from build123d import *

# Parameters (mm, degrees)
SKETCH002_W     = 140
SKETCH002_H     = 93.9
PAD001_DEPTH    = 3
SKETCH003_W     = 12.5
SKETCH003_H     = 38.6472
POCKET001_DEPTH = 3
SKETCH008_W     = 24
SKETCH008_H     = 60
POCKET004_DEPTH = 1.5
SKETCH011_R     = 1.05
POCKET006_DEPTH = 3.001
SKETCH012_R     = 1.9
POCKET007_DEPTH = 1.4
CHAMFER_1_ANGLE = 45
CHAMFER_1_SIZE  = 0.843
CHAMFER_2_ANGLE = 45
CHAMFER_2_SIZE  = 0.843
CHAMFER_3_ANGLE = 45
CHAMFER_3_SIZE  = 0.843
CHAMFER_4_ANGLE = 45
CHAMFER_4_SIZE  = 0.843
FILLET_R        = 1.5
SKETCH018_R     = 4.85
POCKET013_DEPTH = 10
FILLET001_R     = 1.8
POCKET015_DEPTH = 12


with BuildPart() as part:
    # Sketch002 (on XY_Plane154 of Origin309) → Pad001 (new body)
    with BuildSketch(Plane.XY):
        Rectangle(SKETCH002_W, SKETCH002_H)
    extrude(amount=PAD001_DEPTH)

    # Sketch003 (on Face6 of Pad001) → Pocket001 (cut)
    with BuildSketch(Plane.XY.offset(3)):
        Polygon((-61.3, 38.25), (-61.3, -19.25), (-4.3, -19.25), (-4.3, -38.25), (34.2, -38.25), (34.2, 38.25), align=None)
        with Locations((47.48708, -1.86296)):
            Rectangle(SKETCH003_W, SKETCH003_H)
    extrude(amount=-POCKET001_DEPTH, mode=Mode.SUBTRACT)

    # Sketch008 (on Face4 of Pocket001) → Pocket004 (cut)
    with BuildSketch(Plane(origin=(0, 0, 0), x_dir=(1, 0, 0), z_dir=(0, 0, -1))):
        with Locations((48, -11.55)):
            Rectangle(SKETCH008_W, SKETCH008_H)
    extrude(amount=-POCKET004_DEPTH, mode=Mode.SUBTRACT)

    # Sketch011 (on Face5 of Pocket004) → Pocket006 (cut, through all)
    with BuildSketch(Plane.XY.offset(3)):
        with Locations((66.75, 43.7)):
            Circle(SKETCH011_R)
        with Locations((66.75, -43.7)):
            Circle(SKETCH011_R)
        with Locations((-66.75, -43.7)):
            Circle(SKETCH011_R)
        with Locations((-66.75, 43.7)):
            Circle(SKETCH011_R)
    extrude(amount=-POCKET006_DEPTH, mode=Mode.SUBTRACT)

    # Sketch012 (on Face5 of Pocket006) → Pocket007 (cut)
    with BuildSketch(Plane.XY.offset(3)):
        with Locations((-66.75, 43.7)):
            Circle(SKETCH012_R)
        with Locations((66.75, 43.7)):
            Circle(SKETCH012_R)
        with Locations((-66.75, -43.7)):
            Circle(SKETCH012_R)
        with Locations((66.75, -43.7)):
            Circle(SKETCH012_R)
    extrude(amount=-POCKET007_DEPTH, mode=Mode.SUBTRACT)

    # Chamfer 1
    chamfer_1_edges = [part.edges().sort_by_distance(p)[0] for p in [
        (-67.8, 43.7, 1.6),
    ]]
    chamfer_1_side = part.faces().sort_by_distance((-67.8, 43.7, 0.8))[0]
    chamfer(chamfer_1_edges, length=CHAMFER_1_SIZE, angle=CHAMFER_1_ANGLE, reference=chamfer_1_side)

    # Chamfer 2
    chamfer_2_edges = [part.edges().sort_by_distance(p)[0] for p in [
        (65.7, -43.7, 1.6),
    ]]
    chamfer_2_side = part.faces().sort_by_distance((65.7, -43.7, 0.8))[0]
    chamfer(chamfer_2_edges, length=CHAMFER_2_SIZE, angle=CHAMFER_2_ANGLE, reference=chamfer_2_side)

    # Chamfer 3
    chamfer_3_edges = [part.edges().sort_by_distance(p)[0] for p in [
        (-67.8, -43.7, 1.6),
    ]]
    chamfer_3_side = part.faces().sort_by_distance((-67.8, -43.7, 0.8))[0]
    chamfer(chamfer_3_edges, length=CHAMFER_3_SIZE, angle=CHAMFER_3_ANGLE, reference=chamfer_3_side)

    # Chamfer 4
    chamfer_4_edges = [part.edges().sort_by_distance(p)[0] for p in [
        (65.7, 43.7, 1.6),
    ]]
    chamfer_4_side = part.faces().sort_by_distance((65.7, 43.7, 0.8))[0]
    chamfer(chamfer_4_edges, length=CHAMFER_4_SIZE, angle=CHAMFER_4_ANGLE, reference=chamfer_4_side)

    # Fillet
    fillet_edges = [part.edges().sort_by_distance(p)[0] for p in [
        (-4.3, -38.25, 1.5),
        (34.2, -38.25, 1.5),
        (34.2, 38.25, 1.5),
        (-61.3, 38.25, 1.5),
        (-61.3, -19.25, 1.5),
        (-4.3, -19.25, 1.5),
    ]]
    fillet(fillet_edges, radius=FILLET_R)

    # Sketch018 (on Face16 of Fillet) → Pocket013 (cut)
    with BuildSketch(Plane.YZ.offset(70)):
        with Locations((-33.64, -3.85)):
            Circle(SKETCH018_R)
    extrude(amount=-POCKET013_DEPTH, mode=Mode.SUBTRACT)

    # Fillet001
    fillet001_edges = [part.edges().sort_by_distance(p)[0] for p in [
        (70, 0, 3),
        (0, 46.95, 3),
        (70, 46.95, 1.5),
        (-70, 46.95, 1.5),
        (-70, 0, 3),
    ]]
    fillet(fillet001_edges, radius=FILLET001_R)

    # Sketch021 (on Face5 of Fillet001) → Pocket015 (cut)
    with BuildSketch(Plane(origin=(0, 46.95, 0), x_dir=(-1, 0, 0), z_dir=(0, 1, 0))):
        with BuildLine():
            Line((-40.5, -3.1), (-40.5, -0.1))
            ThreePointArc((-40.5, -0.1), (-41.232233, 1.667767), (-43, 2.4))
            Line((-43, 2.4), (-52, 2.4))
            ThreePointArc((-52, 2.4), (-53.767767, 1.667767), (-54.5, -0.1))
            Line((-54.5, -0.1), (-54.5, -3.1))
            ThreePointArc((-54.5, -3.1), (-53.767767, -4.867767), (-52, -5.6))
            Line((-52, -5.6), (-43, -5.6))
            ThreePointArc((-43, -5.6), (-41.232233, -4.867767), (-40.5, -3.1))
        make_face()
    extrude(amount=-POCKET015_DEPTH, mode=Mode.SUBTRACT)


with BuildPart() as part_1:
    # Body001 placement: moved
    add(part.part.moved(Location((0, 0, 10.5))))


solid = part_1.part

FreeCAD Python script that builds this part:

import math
import FreeCAD as App
import Part
import Sketcher
from FreeCAD import Vector


def edges_at(feature, points):
    """Names of the edges that pass closest to the given points."""
    edges = feature.Shape.Edges
    near = lambda p: min(range(len(edges)), key=lambda i: edges[i].distToShape(Part.Vertex(*p))[0])
    return sorted({f"Edge{near(p) + 1}" for p in points})

doc = App.newDocument("Part")
body = doc.addObject("PartDesign::Body", "Body")

# Sketch on XY plane
sketch1 = doc.addObject("Sketcher::SketchObject", "Sketch")
body.addObject(sketch1)
sketch1.AttachmentSupport = (doc.XY_Plane, [""])
sketch1.MapMode = "FlatFace"
sketch1.addGeometry([
    Part.LineSegment(Vector(-70, 47, 0), Vector(-70, -47, 0)),
    Part.LineSegment(Vector(-70, -47, 0), Vector(70, -47, 0)),
    Part.LineSegment(Vector(70, -47, 0), Vector(70, 47, 0)),
    Part.LineSegment(Vector(70, 47, 0), Vector(-70, 47, 0)),
], False)
sketch1.addConstraint([
    Sketcher.Constraint("Coincident", 0, 2, 1, 1),
    Sketcher.Constraint("Coincident", 1, 2, 2, 1),
    Sketcher.Constraint("Coincident", 2, 2, 3, 1),
    Sketcher.Constraint("Coincident", 3, 2, 0, 1),
    Sketcher.Constraint("Vertical", 0),
    Sketcher.Constraint("Horizontal", 1),
    Sketcher.Constraint("Vertical", 2),
    Sketcher.Constraint("Horizontal", 3),
    Sketcher.Constraint("Symmetric", 0, 2, 2, 2, -1, 1),
    Sketcher.Constraint("DistanceX", 1, 1, 1, 2, 140.0),
    Sketcher.Constraint("DistanceY", 0, 2, 0, 1, 93.9),
])
pad1 = doc.addObject("PartDesign::Pad", "Pad")
body.addObject(pad1)
pad1.Profile = sketch1
pad1.Length = 3

# Sketch on XY plane
sketch2 = doc.addObject("Sketcher::SketchObject", "Sketch001")
body.addObject(sketch2)
sketch2.AttachmentSupport = (doc.XY_Plane, [""])
sketch2.MapMode = "FlatFace"
sketch2.AttachmentOffset = App.Placement(Vector(0, 0, 3), App.Rotation())
sketch2.addGeometry([
    Part.LineSegment(Vector(-61, 38, 0), Vector(-61, -19, 0)),  # 0
    Part.LineSegment(Vector(-61, -19, 0), Vector(-4, -19, 0)),  # 1
    Part.LineSegment(Vector(-4, -19, 0), Vector(-4, -38, 0)),  # 2
    Part.LineSegment(Vector(-4, -38, 0), Vector(34, -38, 0)),  # 3
    Part.LineSegment(Vector(34, -38, 0), Vector(34, 38, 0)),  # 4
    Part.LineSegment(Vector(34, 38, 0), Vector(-61, 38, 0)),  # 5
    Part.LineSegment(Vector(41, 17, 0), Vector(41, -21, 0)),  # 6
    Part.LineSegment(Vector(41, -21, 0), Vector(54, -21, 0)),  # 7
    Part.LineSegment(Vector(54, -21, 0), Vector(54, 17, 0)),  # 8
    Part.LineSegment(Vector(54, 17, 0), Vector(41, 17, 0)),  # 9
], False)
sketch2.addConstraint([
    Sketcher.Constraint("Coincident", 0, 2, 1, 1),
    Sketcher.Constraint("Coincident", 1, 2, 2, 1),
    Sketcher.Constraint("Coincident", 2, 2, 3, 1),
    Sketcher.Constraint("Coincident", 3, 2, 4, 1),
    Sketcher.Constraint("Coincident", 4, 2, 5, 1),
    Sketcher.Constraint("Coincident", 5, 2, 0, 1),
    Sketcher.Constraint("Coincident", 6, 2, 7, 1),
    Sketcher.Constraint("Coincident", 7, 2, 8, 1),
    Sketcher.Constraint("Coincident", 8, 2, 9, 1),
    Sketcher.Constraint("Coincident", 9, 2, 6, 1),
    Sketcher.Constraint("Vertical", 0),
    Sketcher.Constraint("Horizontal", 1),
    Sketcher.Constraint("Vertical", 2),
    Sketcher.Constraint("Horizontal", 3),
    Sketcher.Constraint("Vertical", 4),
    Sketcher.Constraint("Horizontal", 5),
    Sketcher.Constraint("Vertical", 6),
    Sketcher.Constraint("Horizontal", 7),
    Sketcher.Constraint("Vertical", 8),
    Sketcher.Constraint("Horizontal", 9),
    Sketcher.Constraint("DistanceX", 1, 1, 1, 2, 57.0),
    Sketcher.Constraint("DistanceY", 2, 2, 2, 1, 19.0),
    Sketcher.Constraint("DistanceX", 3, 1, 3, 2, 38.5),
    Sketcher.Constraint("DistanceX", 7, 1, 7, 2, 12.5),
    Sketcher.Constraint("DistanceY", 0, 2, 0, 1, 57.5),
    Sketcher.Constraint("DistanceX", 0, 2, -1, 1, 61.3),
    Sketcher.Constraint("DistanceY", 0, 2, -1, 1, 19.25),
    Sketcher.Constraint("DistanceY", 6, 2, 6, 1, 38.6472),
    Sketcher.Constraint("DistanceX", -1, 1, 6, 2, 41.23708),
    Sketcher.Constraint("DistanceY", 6, 2, -1, 1, 21.18656),
])
pocket1 = doc.addObject("PartDesign::Pocket", "Pocket")
body.addObject(pocket1)
pocket1.Profile = sketch2
pocket1.Length = 3

# Sketch on XY plane
sketch3 = doc.addObject("Sketcher::SketchObject", "Sketch002")
body.addObject(sketch3)
sketch3.AttachmentSupport = (doc.XY_Plane, [""])
sketch3.MapMode = "FlatFace"
sketch3.addGeometry([
    Part.LineSegment(Vector(36, -18, 0), Vector(36, 42, 0)),
    Part.LineSegment(Vector(36, 42, 0), Vector(60, 42, 0)),
    Part.LineSegment(Vector(60, 42, 0), Vector(60, -18, 0)),
    Part.LineSegment(Vector(60, -18, 0), Vector(36, -18, 0)),
], False)
sketch3.addConstraint([
    Sketcher.Constraint("Coincident", 0, 2, 1, 1),
    Sketcher.Constraint("Coincident", 1, 2, 2, 1),
    Sketcher.Constraint("Coincident", 2, 2, 3, 1),
    Sketcher.Constraint("Coincident", 3, 2, 0, 1),
    Sketcher.Constraint("Vertical", 0),
    Sketcher.Constraint("Horizontal", 1),
    Sketcher.Constraint("Vertical", 2),
    Sketcher.Constraint("Horizontal", 3),
    Sketcher.Constraint("DistanceX", 1, 1, 1, 2, 24.0),
    Sketcher.Constraint("DistanceY", 0, 1, 0, 2, 60.0),
    Sketcher.Constraint("DistanceX", -1, 1, 0, 2, 36.0),
    Sketcher.Constraint("DistanceY", -1, 1, 0, 2, 41.55),
])
pocket2 = doc.addObject("PartDesign::Pocket", "Pocket001")
body.addObject(pocket2)
pocket2.Profile = sketch3
pocket2.Length = 1.5
pocket2.Reversed = True

# Sketch on XY plane
sketch4 = doc.addObject("Sketcher::SketchObject", "Sketch003")
body.addObject(sketch4)
sketch4.AttachmentSupport = (doc.XY_Plane, [""])
sketch4.MapMode = "FlatFace"
sketch4.AttachmentOffset = App.Placement(Vector(0, 0, 3), App.Rotation())
sketch4.addGeometry([
    Part.Circle(Vector(66.8, 43.7, 0), Vector(0, 0, 1), 1.1),
    Part.Circle(Vector(66.8, -43.7, 0), Vector(0, 0, 1), 1.1),
    Part.Circle(Vector(-66.8, -43.7, 0), Vector(0, 0, 1), 1.1),
    Part.Circle(Vector(-66.8, 43.7, 0), Vector(0, 0, 1), 1.1),
], False)
sketch4.addConstraint([
    Sketcher.Constraint("Equal", 0, 1),
    Sketcher.Constraint("Equal", 1, 2),
    Sketcher.Constraint("Equal", 2, 3),
    Sketcher.Constraint("Symmetric", 0, 3, 2, 3, -1, 1),
    Sketcher.Constraint("Symmetric", 1, 3, 3, 3, -1, 1),
    Sketcher.Constraint("Symmetric", 1, 3, 2, 3, -2),
    Sketcher.Constraint("Diameter", 0, 2.1),
    Sketcher.Constraint("DistanceY", -1, 1, 0, 3, 43.7),
    Sketcher.Constraint("DistanceX", 2, 3, 1, 3, 133.5),
])
pocket3 = doc.addObject("PartDesign::Pocket", "Pocket002")
body.addObject(pocket3)
pocket3.Profile = sketch4
pocket3.Type = "ThroughAll"

# Sketch on XY plane
sketch5 = doc.addObject("Sketcher::SketchObject", "Sketch004")
body.addObject(sketch5)
sketch5.AttachmentSupport = (doc.XY_Plane, [""])
sketch5.MapMode = "FlatFace"
sketch5.AttachmentOffset = App.Placement(Vector(0, 0, 3), App.Rotation())
sketch5.addGeometry([
    Part.Circle(Vector(-66.8, 43.7, 0), Vector(0, 0, 1), 1.9),
    Part.Circle(Vector(66.8, 43.7, 0), Vector(0, 0, 1), 1.9),
    Part.Circle(Vector(-66.8, -43.7, 0), Vector(0, 0, 1), 1.9),
    Part.Circle(Vector(66.8, -43.7, 0), Vector(0, 0, 1), 1.9),
], False)
sketch5.addConstraint([
    Sketcher.Constraint("Equal", 0, 1),
    Sketcher.Constraint("Equal", 1, 2),
    Sketcher.Constraint("Equal", 2, 3),
    Sketcher.Constraint("Symmetric", 1, 3, 2, 3, -1, 1),
    Sketcher.Constraint("Symmetric", 0, 3, 3, 3, -1, 1),
    Sketcher.Constraint("Symmetric", 0, 3, 1, 3, -2),
    Sketcher.Constraint("Diameter", 0, 3.8),
    Sketcher.Constraint("DistanceY", -1, 1, 0, 3, 43.7),
    Sketcher.Constraint("DistanceX", 0, 3, 1, 3, 133.5),
])
pocket4 = doc.addObject("PartDesign::Pocket", "Pocket003")
body.addObject(pocket4)
pocket4.Profile = sketch5
pocket4.Length = 1.4
doc.recompute()

chamfer = doc.addObject("PartDesign::Chamfer", "Chamfer")
body.addObject(chamfer)
chamfer.Base = (pocket4, edges_at(pocket4, [(-67.8, 43.7, 1.6)]))
chamfer.Size = 0.843
doc.recompute()

chamfer2 = doc.addObject("PartDesign::Chamfer", "Chamfer001")
body.addObject(chamfer2)
chamfer2.Base = (chamfer, edges_at(chamfer, [(65.7, -43.7, 1.6)]))
chamfer2.Size = 0.843
doc.recompute()

chamfer3 = doc.addObject("PartDesign::Chamfer", "Chamfer002")
body.addObject(chamfer3)
chamfer3.Base = (chamfer2, edges_at(chamfer2, [(-67.8, -43.7, 1.6)]))
chamfer3.Size = 0.843
doc.recompute()

chamfer4 = doc.addObject("PartDesign::Chamfer", "Chamfer003")
body.addObject(chamfer4)
chamfer4.Base = (chamfer3, edges_at(chamfer3, [(65.7, 43.7, 1.6)]))
chamfer4.Size = 0.843
doc.recompute()

fillet = doc.addObject("PartDesign::Fillet", "Fillet")
body.addObject(fillet)
fillet.Base = (chamfer4, edges_at(chamfer4, [
    (-4.3, -38.25, 1.5),
    (34.2, -38.25, 1.5),
    (34.2, 38.25, 1.5),
    (-61.3, 38.25, 1.5),
    (-61.3, -19.25, 1.5),
    (-4.3, -19.25, 1.5),
]))
fillet.Radius = 1.5

# Sketch on YZ plane
sketch6 = doc.addObject("Sketcher::SketchObject", "Sketch005")
body.addObject(sketch6)
sketch6.AttachmentSupport = (doc.YZ_Plane, [""])
sketch6.MapMode = "FlatFace"
sketch6.AttachmentOffset = App.Placement(Vector(0, 0, 70), App.Rotation())
sketch6.addGeometry(Part.Circle(Vector(-33.6, -3.9, 0), Vector(0, 0, 1), 4.8), False)
sketch6.addConstraint([
    Sketcher.Constraint("Diameter", 0, 9.7),
    Sketcher.Constraint("DistanceX", 0, 3, -1, 1, 33.64),
    Sketcher.Constraint("DistanceY", 0, 3, -1, 1, 3.85),
])
pocket5 = doc.addObject("PartDesign::Pocket", "Pocket004")
body.addObject(pocket5)
pocket5.Profile = sketch6
pocket5.Length = 10
doc.recompute()

fillet2 = doc.addObject("PartDesign::Fillet", "Fillet001")
body.addObject(fillet2)
fillet2.Base = (pocket5, edges_at(pocket5, [
    (70, 0, 3),
    (0, 46.95, 3),
    (70, 46.95, 1.5),
    (-70, 46.95, 1.5),
    (-70, 0, 3),
]))
fillet2.Radius = 1.8

# Sketch on XZ plane
sketch7 = doc.addObject("Sketcher::SketchObject", "Sketch006")
body.addObject(sketch7)
sketch7.AttachmentSupport = (doc.XZ_Plane, [""])
sketch7.MapMode = "FlatFace"
sketch7.AttachmentOffset = App.Placement(Vector(0, 0, -46.95), App.Rotation())
sketch7.addGeometry([
    Part.LineSegment(Vector(40.5, -3.1, 0), Vector(40.5, -0.1, 0)),  # 0
    Part.ArcOfCircle(Part.Circle(Vector(43, -0.1, 0), Vector(0, 0, 1), 2.5), math.radians(90), math.radians(180)),  # 1
    Part.LineSegment(Vector(43, 2.4, 0), Vector(52, 2.4, 0)),  # 2
    Part.ArcOfCircle(Part.Circle(Vector(52, -0.1, 0), Vector(0, 0, 1), 2.5), math.radians(0), math.radians(90)),  # 3
    Part.LineSegment(Vector(54.5, -0.1, 0), Vector(54.5, -3.1, 0)),  # 4
    Part.ArcOfCircle(Part.Circle(Vector(52, -3.1, 0), Vector(0, 0, 1), 2.5), math.radians(-90), math.radians(0)),  # 5
    Part.LineSegment(Vector(52, -5.6, 0), Vector(43, -5.6, 0)),  # 6
    Part.ArcOfCircle(Part.Circle(Vector(43, -3.1, 0), Vector(0, 0, 1), 2.5), math.radians(180), math.radians(270)),  # 7
], False)
sketch7.addConstraint([
    Sketcher.Constraint("Tangent", 0, 2, 1, 2),
    Sketcher.Constraint("Tangent", 1, 1, 2, 1),
    Sketcher.Constraint("Tangent", 2, 2, 3, 2),
    Sketcher.Constraint("Tangent", 3, 1, 4, 1),
    Sketcher.Constraint("Tangent", 4, 2, 5, 2),
    Sketcher.Constraint("Tangent", 5, 1, 6, 1),
    Sketcher.Constraint("Tangent", 6, 2, 7, 2),
    Sketcher.Constraint("Tangent", 7, 1, 0, 1),
    Sketcher.Constraint("Vertical", 0),
    Sketcher.Constraint("Horizontal", 2),
    Sketcher.Constraint("Vertical", 4),
    Sketcher.Constraint("Horizontal", 6),
    Sketcher.Constraint("Equal", 1, 3),
    Sketcher.Constraint("Equal", 3, 5),
    Sketcher.Constraint("Equal", 5, 7),
    Sketcher.Constraint("Radius", 1, 2.5),
    Sketcher.Constraint("DistanceX", 2, 1, 2, 2, 9.0),
    Sketcher.Constraint("DistanceY", 0, 1, 0, 2, 3.0),
    Sketcher.Constraint("DistanceX", -1, 1, 1, 3, 43.0),
    Sketcher.Constraint("DistanceY", 1, 3, -1, 1, 0.1),
])
pocket6 = doc.addObject("PartDesign::Pocket", "Pocket005")
body.addObject(pocket6)
pocket6.Profile = sketch7
pocket6.Length = 12
pocket6.Reversed = True
body2 = doc.addObject("PartDesign::Body", "Body001")
doc.recompute()

body.Placement = App.Placement(Vector(0, 0, 10.5), App.Rotation(Vector(0, 0, 1), 0))
boolean = doc.addObject("PartDesign::Boolean", "Boolean")
body2.addObject(boolean)
boolean.Type = "Fuse"
boolean.addObjects([body])

doc.recompute()
